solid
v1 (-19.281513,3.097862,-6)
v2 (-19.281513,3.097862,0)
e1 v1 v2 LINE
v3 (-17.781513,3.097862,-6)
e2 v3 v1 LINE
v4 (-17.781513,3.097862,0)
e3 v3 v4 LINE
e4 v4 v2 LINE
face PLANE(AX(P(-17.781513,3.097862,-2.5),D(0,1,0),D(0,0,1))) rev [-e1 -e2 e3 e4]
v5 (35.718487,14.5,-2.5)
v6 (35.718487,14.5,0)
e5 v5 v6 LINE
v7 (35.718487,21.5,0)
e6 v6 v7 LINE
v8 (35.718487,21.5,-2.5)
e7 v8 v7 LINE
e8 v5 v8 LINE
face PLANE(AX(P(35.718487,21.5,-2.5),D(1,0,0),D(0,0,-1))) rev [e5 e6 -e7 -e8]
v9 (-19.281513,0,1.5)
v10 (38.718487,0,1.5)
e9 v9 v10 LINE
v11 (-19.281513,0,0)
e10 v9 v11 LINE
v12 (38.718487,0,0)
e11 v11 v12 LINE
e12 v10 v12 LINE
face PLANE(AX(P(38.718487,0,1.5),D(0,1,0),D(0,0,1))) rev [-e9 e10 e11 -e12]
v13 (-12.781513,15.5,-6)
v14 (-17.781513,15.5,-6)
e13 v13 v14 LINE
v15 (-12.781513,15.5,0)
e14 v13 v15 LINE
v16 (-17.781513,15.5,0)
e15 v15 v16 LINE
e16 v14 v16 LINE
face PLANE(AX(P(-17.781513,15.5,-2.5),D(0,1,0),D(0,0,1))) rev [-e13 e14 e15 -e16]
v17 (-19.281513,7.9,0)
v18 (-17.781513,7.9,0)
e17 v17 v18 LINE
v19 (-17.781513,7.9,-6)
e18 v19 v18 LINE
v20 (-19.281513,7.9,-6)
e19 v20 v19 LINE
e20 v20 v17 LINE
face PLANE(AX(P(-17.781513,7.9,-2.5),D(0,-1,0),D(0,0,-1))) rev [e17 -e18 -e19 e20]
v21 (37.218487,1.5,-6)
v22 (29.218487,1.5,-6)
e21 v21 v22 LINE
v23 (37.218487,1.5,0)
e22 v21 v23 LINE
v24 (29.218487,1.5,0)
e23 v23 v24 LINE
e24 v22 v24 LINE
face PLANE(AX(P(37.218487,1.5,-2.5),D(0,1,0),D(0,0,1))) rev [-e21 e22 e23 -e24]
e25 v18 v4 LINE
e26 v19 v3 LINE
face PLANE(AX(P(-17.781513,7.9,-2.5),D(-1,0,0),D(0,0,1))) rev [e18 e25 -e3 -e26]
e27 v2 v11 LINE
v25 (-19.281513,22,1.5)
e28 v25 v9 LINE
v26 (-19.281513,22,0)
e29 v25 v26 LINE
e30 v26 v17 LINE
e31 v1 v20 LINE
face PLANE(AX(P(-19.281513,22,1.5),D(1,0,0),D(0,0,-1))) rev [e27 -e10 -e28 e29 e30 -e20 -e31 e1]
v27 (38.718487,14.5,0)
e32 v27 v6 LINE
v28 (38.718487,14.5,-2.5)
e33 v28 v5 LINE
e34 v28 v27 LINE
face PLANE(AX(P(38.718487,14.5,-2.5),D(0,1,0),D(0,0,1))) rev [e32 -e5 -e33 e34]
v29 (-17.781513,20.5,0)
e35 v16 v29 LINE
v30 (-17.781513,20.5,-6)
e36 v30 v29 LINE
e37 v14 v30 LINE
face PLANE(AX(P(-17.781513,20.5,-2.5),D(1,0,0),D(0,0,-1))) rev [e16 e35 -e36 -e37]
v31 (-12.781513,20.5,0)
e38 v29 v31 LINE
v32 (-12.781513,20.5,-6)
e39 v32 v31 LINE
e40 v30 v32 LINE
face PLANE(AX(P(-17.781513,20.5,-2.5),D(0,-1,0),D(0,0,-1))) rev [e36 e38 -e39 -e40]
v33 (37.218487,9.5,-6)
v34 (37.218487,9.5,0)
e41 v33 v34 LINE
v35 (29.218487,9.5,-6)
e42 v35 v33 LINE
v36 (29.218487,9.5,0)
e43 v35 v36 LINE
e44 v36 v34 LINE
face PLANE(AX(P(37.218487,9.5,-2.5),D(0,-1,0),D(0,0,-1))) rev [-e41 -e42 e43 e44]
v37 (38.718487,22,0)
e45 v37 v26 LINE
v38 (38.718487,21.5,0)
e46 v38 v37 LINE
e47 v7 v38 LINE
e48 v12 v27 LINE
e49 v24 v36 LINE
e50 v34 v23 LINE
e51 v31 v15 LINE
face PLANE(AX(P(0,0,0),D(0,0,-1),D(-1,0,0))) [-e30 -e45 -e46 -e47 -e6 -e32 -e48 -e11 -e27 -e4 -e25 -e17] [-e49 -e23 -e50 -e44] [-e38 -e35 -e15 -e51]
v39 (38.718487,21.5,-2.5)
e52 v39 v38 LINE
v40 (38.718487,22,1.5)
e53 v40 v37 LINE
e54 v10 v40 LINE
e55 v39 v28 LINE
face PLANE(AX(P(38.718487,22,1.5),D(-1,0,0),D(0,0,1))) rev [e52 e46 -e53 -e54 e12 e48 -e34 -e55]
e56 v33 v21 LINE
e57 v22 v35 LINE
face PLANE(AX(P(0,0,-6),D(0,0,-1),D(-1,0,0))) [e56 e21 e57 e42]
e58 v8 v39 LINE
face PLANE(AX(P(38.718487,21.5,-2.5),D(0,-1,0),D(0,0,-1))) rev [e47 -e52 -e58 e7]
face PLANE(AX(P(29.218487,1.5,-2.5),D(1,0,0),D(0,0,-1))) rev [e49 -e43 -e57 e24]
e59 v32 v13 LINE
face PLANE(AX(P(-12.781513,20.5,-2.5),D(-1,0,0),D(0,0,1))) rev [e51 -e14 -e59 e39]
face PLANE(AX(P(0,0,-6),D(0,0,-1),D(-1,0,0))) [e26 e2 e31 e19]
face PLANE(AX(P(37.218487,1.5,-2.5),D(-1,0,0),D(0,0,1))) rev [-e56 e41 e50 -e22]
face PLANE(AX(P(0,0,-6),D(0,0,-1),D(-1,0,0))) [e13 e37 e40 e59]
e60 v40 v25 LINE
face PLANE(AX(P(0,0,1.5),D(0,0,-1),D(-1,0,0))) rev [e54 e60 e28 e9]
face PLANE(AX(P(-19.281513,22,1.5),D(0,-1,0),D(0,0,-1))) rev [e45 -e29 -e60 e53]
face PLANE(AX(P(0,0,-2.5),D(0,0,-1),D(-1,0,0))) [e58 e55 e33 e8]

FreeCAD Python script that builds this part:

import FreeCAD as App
import Part
import Sketcher

V = App.Vector
Q = App.Units.Quantity


def add_polygon(sketch, points):
    """Adds a closed chain of lines whose ends are joined by coincident constraints."""
    first, n = sketch.GeometryCount, len(points)
    for a, b in zip(points, points[1:] + points[:1]):
        sketch.addGeometry(Part.LineSegment(App.Vector(*a, 0), App.Vector(*b, 0)), False)
    for i in range(n):
        sketch.addConstraint(Sketcher.Constraint("Coincident", first + i, 2, first + (i + 1) % n, 1))

doc = App.newDocument("Part")
body = doc.addObject("PartDesign::Body", "Body")

# Sketch on XY plane
sketch1 = doc.addObject("Sketcher::SketchObject", "Sketch")
body.addObject(sketch1)
sketch1.AttachmentSupport = (doc.XY_Plane, [""])
sketch1.MapMode = "FlatFace"
add_polygon(sketch1, [(-19.281513, 22), (-19.281513, 0), (38.718487, 0), (38.718487, 22)])  # lines 0-3
sketch1.addConstraint(Sketcher.Constraint("Vertical", 0))
sketch1.addConstraint(Sketcher.Constraint("Horizontal", 1))
sketch1.addConstraint(Sketcher.Constraint("Vertical", 2))
sketch1.addConstraint(Sketcher.Constraint("Horizontal", 3))
sketch1.addConstraint(Sketcher.Constraint("PointOnObject", 0, 2, -1))
sketch1.addConstraint(Sketcher.Constraint("DistanceX", 1, 1, 1, 2, Q("58 mm")))
sketch1.addConstraint(Sketcher.Constraint("DistanceY", 0, 2, 0, 1, Q("22 mm")))
sketch1.addConstraint(Sketcher.Constraint("DistanceX", 0, 2, -1, 1, Q("19.281513 mm")))
pad1 = doc.addObject("PartDesign::Pad", "Pad")
body.addObject(pad1)
pad1.Profile = sketch1
pad1.Length = 1.5

# Sketch on XY plane
sketch2 = doc.addObject("Sketcher::SketchObject", "Sketch001")
body.addObject(sketch2)
sketch2.AttachmentSupport = (doc.XY_Plane, [""])
sketch2.MapMode = "FlatFace"
add_polygon(sketch2, [(-12.781513, 20.5), (-12.781513, 15.5), (-17.781513, 15.5), (-17.781513, 20.5)])  # lines 0-3
add_polygon(sketch2, [(-17.781513, 7.9), (-17.781513, 3.097862), (-19.281513, 3.097862), (-19.281513, 7.9)])  # lines 4-7
add_polygon(sketch2, [(38.718487, 21.5), (38.718487, 14.5), (35.718487, 14.5), (35.718487, 21.5)])  # lines 8-11
add_polygon(sketch2, [(37.218487, 9.5), (37.218487, 1.5), (29.218487, 1.5), (29.218487, 9.5)])  # lines 12-15
sketch2.addConstraint(Sketcher.Constraint("Vertical", 0))
sketch2.addConstraint(Sketcher.Constraint("Horizontal", 1))
sketch2.addConstraint(Sketcher.Constraint("Vertical", 2))
sketch2.addConstraint(Sketcher.Constraint("Horizontal", 3))
sketch2.addConstraint(Sketcher.Constraint("Vertical", 4))
sketch2.addConstraint(Sketcher.Constraint("Horizontal", 5))
sketch2.addConstraint(Sketcher.Constraint("Vertical", 6))
sketch2.addConstraint(Sketcher.Constraint("Horizontal", 7))
sketch2.addConstraint(Sketcher.Constraint("Vertical", 8))
sketch2.addConstraint(Sketcher.Constraint("Horizontal", 9))
sketch2.addConstraint(Sketcher.Constraint("Vertical", 10))
sketch2.addConstraint(Sketcher.Constraint("Horizontal", 11))
sketch2.addConstraint(Sketcher.Constraint("Vertical", 12))
sketch2.addConstraint(Sketcher.Constraint("Horizontal", 13))
sketch2.addConstraint(Sketcher.Constraint("Vertical", 14))
sketch2.addConstraint(Sketcher.Constraint("Horizontal", 15))
sketch2.addConstraint(Sketcher.Constraint("Vertical", 2, 2, 4, 2))
sketch2.addConstraint(Sketcher.Constraint("Equal", 3, 0))
sketch2.addConstraint(Sketcher.Constraint("Equal", 15, 12))
sketch2.addConstraint(Sketcher.Constraint("DistanceX", 1, 2, 1, 1, Q("5 mm")))
sketch2.addConstraint(Sketcher.Constraint("DistanceX", 9, 2, 9, 1, Q("3 mm")))
sketch2.addConstraint(Sketcher.Constraint("DistanceX", 13, 2, 13, 1, Q("8 mm")))
sketch2.addConstraint(Sketcher.Constraint("DistanceY", 8, 2, 8, 1, Q("7 mm")))
sketch2.addConstraint(Sketcher.Constraint("DistanceX", 5, 2, 5, 1, Q("1.5 mm")))
sketch2.addConstraint(Sketcher.Constraint("DistanceY", 8, 2, 0, 2, Q("1 mm")))
sketch2.addConstraint(Sketcher.Constraint("DistanceY", 12, 2, 8, 2, Q("13 mm")))
sketch2.addConstraint(Sketcher.Constraint("DistanceX", 0, 2, 12, 2, Q("50 mm")))
sketch2.addConstraint(Sketcher.Constraint("DistanceY", -1, 1, 0, 2, Q("15.5 mm")))
sketch2.addConstraint(Sketcher.Constraint("DistanceY", -1, 1, 6, 2, Q("7.9 mm")))
sketch2.addConstraint(Sketcher.Constraint("DistanceX", 0, 2, 8, 2, Q("51.5 mm")))
sketch2.addConstraint(Sketcher.Constraint("DistanceY", 4, 2, 4, 1, Q("4.802138 mm")))
sketch2.addConstraint(Sketcher.Constraint("DistanceX", 0, 2, -1, 1, Q("12.781513 mm")))
pad2 = doc.addObject("PartDesign::Pad", "Pad001")
body.addObject(pad2)
pad2.Profile = sketch2
pad2.Length = 2.5
pad2.Reversed = True

# Sketch on XY plane
sketch3 = doc.addObject("Sketcher::SketchObject", "Sketch002")
body.addObject(sketch3)
sketch3.AttachmentSupport = (doc.XY_Plane, [""])
sketch3.MapMode = "FlatFace"
sketch3.AttachmentOffset = App.Placement(V(0, 0, -2.5), App.Rotation())
add_polygon(sketch3, [(-17.781513, 7.9), (-17.781513, 3.097862), (-19.281513, 3.097862), (-19.281513, 7.9)])  # lines 0-3
add_polygon(sketch3, [(-12.781513, 20.5), (-12.781513, 15.5), (-17.781513, 15.5), (-17.781513, 20.5)])  # lines 4-7
add_polygon(sketch3, [(37.218487, 9.5), (37.218487, 1.5), (29.218487, 1.5), (29.218487, 9.5)])  # lines 8-11
sketch3.addConstraint(Sketcher.Constraint("Vertical", 0))
sketch3.addConstraint(Sketcher.Constraint("Horizontal", 1))
sketch3.addConstraint(Sketcher.Constraint("Vertical", 2))
sketch3.addConstraint(Sketcher.Constraint("Horizontal", 3))
sketch3.addConstraint(Sketcher.Constraint("Vertical", 4))
sketch3.addConstraint(Sketcher.Constraint("Horizontal", 5))
sketch3.addConstraint(Sketcher.Constraint("Vertical", 6))
sketch3.addConstraint(Sketcher.Constraint("Horizontal", 7))
sketch3.addConstraint(Sketcher.Constraint("Vertical", 8))
sketch3.addConstraint(Sketcher.Constraint("Horizontal", 9))
sketch3.addConstraint(Sketcher.Constraint("Vertical", 10))
sketch3.addConstraint(Sketcher.Constraint("Horizontal", 11))
sketch3.addConstraint(Sketcher.Constraint("Vertical", 3, 2, 5, 2))
sketch3.addConstraint(Sketcher.Constraint("Equal", 7, 4))
sketch3.addConstraint(Sketcher.Constraint("Equal", 11, 8))
sketch3.addConstraint(Sketcher.Constraint("DistanceX", 5, 2, 5, 1, Q("5 mm")))
sketch3.addConstraint(Sketcher.Constraint("DistanceX", 9, 2, 9, 1, Q("8 mm")))
sketch3.addConstraint(Sketcher.Constraint("DistanceX", 1, 2, 1, 1, Q("1.5 mm")))
sketch3.addConstraint(Sketcher.Constraint("DistanceX", 4, 2, 8, 2, Q("50 mm")))
sketch3.addConstraint(Sketcher.Constraint("DistanceY", 8, 2, 4, 2, Q("14 mm")))
sketch3.addConstraint(Sketcher.Constraint("DistanceY", -1, 1, 2, 2, Q("7.9 mm")))
sketch3.addConstraint(Sketcher.Constraint("DistanceY", -1, 1, 4, 2, Q("15.5 mm")))
sketch3.addConstraint(Sketcher.Constraint("DistanceY", 0, 2, 0, 1, Q("4.802138 mm")))
sketch3.addConstraint(Sketcher.Constraint("DistanceX", 0, 2, -1, 1, Q("17.781513 mm")))
pad3 = doc.addObject("PartDesign::Pad", "Pad002")
body.addObject(pad3)
pad3.Profile = sketch3
pad3.Length = 3.5
pad3.Reversed = True

doc.recompute()
